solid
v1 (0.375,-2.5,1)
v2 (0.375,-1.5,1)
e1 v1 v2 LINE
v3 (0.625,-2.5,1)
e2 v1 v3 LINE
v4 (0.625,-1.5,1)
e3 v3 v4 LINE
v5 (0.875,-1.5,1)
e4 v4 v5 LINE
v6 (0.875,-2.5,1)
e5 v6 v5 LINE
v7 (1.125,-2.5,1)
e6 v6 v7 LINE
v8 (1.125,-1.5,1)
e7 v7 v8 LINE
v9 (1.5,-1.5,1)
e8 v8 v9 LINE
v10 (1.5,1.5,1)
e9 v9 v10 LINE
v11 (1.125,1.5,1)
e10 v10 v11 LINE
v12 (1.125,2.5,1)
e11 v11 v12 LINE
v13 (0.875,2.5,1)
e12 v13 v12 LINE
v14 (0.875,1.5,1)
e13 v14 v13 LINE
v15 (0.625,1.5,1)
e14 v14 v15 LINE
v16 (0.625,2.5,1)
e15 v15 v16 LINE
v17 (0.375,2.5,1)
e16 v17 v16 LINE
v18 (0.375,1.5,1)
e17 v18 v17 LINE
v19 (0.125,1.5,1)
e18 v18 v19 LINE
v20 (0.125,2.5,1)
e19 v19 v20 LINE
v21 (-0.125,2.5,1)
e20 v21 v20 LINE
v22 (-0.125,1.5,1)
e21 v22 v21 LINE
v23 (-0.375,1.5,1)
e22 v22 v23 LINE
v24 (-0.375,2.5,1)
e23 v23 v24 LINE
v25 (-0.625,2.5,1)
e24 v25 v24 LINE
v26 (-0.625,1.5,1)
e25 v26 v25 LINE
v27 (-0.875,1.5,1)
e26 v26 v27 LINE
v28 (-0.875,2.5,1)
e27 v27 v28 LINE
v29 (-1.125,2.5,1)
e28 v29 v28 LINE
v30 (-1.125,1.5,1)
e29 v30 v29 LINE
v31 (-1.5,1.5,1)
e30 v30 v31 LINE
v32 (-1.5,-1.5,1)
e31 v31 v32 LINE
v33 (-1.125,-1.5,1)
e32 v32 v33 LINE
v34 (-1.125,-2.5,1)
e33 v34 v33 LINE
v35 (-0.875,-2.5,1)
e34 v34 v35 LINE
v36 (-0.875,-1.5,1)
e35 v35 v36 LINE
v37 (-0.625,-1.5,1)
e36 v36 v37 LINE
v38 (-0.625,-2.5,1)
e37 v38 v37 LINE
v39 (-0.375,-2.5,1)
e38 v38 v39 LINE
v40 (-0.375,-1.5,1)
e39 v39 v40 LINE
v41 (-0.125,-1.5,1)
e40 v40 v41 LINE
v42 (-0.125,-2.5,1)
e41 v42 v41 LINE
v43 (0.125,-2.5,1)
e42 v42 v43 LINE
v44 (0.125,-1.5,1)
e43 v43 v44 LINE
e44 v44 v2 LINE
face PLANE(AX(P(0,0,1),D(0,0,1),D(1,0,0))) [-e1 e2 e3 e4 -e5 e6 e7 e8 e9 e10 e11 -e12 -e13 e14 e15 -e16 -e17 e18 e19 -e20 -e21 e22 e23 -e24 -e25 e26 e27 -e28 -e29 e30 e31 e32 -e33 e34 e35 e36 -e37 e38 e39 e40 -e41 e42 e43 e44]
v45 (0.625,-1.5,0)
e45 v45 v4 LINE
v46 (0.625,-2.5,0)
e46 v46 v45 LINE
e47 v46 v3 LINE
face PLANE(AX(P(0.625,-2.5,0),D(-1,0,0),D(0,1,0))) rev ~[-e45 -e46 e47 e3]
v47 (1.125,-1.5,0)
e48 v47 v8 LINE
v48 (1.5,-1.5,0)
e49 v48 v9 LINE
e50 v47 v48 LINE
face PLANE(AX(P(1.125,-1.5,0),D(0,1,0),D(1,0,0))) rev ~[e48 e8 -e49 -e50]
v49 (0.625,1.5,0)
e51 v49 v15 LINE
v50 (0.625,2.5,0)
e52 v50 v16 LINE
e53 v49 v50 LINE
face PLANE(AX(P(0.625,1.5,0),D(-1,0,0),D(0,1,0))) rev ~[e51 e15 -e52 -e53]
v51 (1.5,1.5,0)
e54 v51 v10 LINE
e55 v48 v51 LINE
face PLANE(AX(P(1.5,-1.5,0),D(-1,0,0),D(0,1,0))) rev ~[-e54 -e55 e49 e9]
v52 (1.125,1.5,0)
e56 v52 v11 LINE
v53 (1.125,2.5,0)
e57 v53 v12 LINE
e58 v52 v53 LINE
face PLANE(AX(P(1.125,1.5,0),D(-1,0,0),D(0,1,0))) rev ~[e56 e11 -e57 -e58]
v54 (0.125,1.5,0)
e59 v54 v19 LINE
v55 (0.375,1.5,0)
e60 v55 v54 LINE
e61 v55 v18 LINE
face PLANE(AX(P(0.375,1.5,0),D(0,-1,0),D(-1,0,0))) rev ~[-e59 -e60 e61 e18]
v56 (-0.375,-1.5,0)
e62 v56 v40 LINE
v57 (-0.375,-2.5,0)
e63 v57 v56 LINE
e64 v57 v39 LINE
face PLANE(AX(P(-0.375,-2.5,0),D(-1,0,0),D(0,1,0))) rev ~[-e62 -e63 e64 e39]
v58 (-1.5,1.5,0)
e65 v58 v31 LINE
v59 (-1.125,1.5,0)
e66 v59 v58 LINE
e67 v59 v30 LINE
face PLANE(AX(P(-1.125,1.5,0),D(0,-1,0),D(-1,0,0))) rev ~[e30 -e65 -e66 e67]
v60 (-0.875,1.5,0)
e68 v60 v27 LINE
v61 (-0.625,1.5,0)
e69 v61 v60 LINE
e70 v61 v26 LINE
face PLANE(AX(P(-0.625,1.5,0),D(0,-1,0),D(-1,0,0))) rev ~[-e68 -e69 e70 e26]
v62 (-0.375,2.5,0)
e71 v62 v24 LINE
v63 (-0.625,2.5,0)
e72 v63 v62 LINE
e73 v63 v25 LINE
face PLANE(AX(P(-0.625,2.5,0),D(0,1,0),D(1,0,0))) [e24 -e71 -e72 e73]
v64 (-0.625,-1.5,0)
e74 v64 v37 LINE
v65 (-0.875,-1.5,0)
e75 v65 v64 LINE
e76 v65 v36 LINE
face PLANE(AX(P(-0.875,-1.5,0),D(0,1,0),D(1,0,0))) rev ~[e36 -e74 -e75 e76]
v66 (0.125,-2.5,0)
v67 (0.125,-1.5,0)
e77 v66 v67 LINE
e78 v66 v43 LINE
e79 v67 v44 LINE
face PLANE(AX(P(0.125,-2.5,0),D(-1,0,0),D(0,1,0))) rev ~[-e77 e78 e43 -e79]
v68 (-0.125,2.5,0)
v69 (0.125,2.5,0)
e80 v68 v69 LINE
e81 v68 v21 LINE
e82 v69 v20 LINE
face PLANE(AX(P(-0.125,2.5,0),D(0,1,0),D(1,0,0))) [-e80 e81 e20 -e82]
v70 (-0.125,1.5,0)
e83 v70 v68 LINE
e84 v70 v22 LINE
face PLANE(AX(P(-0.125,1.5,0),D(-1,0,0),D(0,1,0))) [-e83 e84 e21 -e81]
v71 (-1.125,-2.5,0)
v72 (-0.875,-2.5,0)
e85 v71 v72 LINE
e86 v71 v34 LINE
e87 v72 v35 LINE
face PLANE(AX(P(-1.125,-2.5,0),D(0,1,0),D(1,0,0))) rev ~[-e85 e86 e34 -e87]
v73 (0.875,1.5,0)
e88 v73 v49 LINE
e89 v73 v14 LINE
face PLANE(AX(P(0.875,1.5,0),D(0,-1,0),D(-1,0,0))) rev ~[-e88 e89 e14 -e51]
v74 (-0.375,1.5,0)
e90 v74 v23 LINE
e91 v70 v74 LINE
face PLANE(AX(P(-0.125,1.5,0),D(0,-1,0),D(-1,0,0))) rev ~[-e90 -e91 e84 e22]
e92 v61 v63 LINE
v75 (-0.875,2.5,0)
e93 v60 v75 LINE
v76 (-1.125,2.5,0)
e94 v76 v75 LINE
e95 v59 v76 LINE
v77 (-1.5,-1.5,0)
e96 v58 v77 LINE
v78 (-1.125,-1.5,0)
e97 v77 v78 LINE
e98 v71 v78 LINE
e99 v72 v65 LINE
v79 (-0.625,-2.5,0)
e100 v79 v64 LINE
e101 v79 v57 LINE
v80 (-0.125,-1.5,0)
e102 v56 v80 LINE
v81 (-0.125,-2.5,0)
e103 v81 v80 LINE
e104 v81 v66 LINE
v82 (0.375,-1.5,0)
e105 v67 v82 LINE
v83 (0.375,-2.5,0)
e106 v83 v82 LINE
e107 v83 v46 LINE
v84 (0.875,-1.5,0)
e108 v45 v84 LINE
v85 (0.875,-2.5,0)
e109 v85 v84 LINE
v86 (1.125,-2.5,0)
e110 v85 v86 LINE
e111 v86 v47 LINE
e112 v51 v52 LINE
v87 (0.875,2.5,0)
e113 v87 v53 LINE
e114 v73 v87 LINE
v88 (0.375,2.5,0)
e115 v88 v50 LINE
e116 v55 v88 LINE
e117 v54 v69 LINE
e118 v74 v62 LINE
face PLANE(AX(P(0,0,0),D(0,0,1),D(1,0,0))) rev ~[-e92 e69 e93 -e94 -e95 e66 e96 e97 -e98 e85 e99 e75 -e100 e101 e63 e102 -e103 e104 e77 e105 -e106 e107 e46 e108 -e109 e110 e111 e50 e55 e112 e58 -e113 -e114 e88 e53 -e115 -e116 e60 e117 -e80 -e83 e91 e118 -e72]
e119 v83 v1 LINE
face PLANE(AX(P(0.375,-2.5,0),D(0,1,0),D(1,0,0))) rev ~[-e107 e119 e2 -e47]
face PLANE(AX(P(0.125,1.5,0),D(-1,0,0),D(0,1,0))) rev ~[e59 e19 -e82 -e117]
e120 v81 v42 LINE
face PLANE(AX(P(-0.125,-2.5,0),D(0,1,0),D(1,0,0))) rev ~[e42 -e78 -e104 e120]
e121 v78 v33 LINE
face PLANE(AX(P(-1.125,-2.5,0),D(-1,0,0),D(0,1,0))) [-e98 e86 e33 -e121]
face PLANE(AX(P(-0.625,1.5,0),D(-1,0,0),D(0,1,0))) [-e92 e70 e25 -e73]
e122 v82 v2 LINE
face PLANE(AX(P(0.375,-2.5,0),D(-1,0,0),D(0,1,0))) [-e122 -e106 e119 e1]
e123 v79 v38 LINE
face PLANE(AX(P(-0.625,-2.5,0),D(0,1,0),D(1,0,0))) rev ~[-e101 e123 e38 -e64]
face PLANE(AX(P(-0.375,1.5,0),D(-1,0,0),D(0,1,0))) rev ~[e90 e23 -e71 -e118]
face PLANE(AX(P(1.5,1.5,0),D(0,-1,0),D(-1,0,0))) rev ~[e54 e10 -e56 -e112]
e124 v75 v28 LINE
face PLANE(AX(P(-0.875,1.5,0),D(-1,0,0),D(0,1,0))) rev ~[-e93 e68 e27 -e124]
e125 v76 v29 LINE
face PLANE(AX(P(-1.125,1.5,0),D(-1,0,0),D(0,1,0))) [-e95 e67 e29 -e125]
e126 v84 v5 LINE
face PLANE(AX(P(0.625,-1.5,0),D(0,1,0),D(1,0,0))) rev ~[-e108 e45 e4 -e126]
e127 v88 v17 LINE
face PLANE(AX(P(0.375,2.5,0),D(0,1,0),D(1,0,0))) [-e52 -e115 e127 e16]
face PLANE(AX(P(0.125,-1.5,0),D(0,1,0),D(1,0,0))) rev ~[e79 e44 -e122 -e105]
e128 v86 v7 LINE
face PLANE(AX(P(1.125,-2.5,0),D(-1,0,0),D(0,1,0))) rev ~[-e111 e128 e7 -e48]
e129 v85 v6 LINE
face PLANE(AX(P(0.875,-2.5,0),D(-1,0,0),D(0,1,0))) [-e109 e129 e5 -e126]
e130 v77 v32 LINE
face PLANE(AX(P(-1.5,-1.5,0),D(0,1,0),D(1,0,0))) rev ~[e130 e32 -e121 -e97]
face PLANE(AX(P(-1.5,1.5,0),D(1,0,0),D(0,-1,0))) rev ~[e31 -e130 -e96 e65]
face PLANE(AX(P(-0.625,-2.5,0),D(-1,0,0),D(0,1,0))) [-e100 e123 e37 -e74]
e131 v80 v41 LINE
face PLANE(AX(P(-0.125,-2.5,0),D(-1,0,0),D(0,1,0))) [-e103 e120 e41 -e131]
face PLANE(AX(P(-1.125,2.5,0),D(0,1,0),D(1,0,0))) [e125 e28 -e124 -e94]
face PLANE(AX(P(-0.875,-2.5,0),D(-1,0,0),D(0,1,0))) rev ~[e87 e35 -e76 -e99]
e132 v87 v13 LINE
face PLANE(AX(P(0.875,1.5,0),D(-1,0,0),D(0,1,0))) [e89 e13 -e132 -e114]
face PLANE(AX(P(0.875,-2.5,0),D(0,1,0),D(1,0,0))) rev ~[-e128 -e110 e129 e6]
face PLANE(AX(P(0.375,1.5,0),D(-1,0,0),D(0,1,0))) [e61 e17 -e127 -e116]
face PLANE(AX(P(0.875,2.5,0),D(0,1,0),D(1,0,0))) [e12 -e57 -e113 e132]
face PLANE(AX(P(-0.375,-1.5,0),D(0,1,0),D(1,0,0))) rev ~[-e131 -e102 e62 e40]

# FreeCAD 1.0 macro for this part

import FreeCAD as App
import Part
import Sketcher
from FreeCAD import Vector


def add_polygon(sketch, points):
    """Adds a closed chain of lines whose ends are joined by coincident constraints."""
    first, n = sketch.GeometryCount, len(points)
    for a, b in zip(points, points[1:] + points[:1]):
        sketch.addGeometry(Part.LineSegment(App.Vector(*a, 0), App.Vector(*b, 0)), False)
    for i in range(n):
        sketch.addConstraint(Sketcher.Constraint("Coincident", first + i, 2, first + (i + 1) % n, 1))

doc = App.newDocument("Part")
body = doc.addObject("PartDesign::Body", "Body")

# Sketch on XY plane
sketch1 = body.newObject("Sketcher::SketchObject", "Sketch")
sketch1.AttachmentSupport = (doc.getObject("XY_Plane"), [""])
sketch1.MapMode = "FlatFace"
add_polygon(sketch1, [(1.5, -1.5), (1.5, 1.5), (1.12, 1.5), (1.12, 2.5), (0.88, 2.5), (0.88, 1.5), (0.62, 1.5), (0.62, 2.5), (0.38, 2.5), (0.38, 1.5), (0.12, 1.5), (0.12, 2.5), (-0.12, 2.5), (-0.12, 1.5), (-0.38, 1.5), (-0.38, 2.5), (-0.62, 2.5), (-0.62, 1.5), (-0.88, 1.5), (-0.88, 2.5), (-1.12, 2.5), (-1.12, 1.5), (-1.5, 1.5), (-1.5, -1.5), (-1.12, -1.5), (-1.12, -2.5), (-0.88, -2.5), (-0.88, -1.5), (-0.62, -1.5), (-0.62, -2.5), (-0.38, -2.5), (-0.38, -1.5), (-0.12, -1.5), (-0.12, -2.5), (0.12, -2.5), (0.12, -1.5), (0.38, -1.5), (0.38, -2.5), (0.62, -2.5), (0.62, -1.5), (0.88, -1.5), (0.88, -2.5), (1.12, -2.5), (1.12, -1.5)])  # lines 0-43
sketch1.addConstraint(Sketcher.Constraint("Vertical", 0))
sketch1.addConstraint(Sketcher.Constraint("Horizontal", 1))
sketch1.addConstraint(Sketcher.Constraint("Vertical", 2))
sketch1.addConstraint(Sketcher.Constraint("Horizontal", 3))
sketch1.addConstraint(Sketcher.Constraint("Vertical", 4))
sketch1.addConstraint(Sketcher.Constraint("Horizontal", 5))
sketch1.addConstraint(Sketcher.Constraint("Vertical", 6))
sketch1.addConstraint(Sketcher.Constraint("Horizontal", 7))
sketch1.addConstraint(Sketcher.Constraint("Vertical", 8))
sketch1.addConstraint(Sketcher.Constraint("Horizontal", 9))
sketch1.addConstraint(Sketcher.Constraint("Vertical", 10))
sketch1.addConstraint(Sketcher.Constraint("Horizontal", 11))
sketch1.addConstraint(Sketcher.Constraint("Vertical", 12))
sketch1.addConstraint(Sketcher.Constraint("Horizontal", 13))
sketch1.addConstraint(Sketcher.Constraint("Vertical", 14))
sketch1.addConstraint(Sketcher.Constraint("Horizontal", 15))
sketch1.addConstraint(Sketcher.Constraint("Vertical", 16))
sketch1.addConstraint(Sketcher.Constraint("Horizontal", 17))
sketch1.addConstraint(Sketcher.Constraint("Vertical", 18))
sketch1.addConstraint(Sketcher.Constraint("Horizontal", 19))
sketch1.addConstraint(Sketcher.Constraint("Vertical", 20))
sketch1.addConstraint(Sketcher.Constraint("Horizontal", 21))
sketch1.addConstraint(Sketcher.Constraint("Vertical", 22))
sketch1.addConstraint(Sketcher.Constraint("Horizontal", 23))
sketch1.addConstraint(Sketcher.Constraint("Vertical", 24))
sketch1.addConstraint(Sketcher.Constraint("Horizontal", 25))
sketch1.addConstraint(Sketcher.Constraint("Vertical", 26))
sketch1.addConstraint(Sketcher.Constraint("Horizontal", 27))
sketch1.addConstraint(Sketcher.Constraint("Vertical", 28))
sketch1.addConstraint(Sketcher.Constraint("Horizontal", 29))
sketch1.addConstraint(Sketcher.Constraint("Vertical", 30))
sketch1.addConstraint(Sketcher.Constraint("Horizontal", 31))
sketch1.addConstraint(Sketcher.Constraint("Vertical", 32))
sketch1.addConstraint(Sketcher.Constraint("Horizontal", 33))
sketch1.addConstraint(Sketcher.Constraint("Vertical", 34))
sketch1.addConstraint(Sketcher.Constraint("Horizontal", 35))
sketch1.addConstraint(Sketcher.Constraint("Vertical", 36))
sketch1.addConstraint(Sketcher.Constraint("Horizontal", 37))
sketch1.addConstraint(Sketcher.Constraint("Vertical", 38))
sketch1.addConstraint(Sketcher.Constraint("Horizontal", 39))
sketch1.addConstraint(Sketcher.Constraint("Vertical", 40))
sketch1.addConstraint(Sketcher.Constraint("Horizontal", 41))
sketch1.addConstraint(Sketcher.Constraint("Vertical", 42))
sketch1.addConstraint(Sketcher.Constraint("Horizontal", 43))
sketch1.addConstraint(Sketcher.Constraint("Symmetric", 0, 2, 22, 2, -1, 1))
sketch1.addConstraint(Sketcher.Constraint("Symmetric", 2, 2, 24, 2, -1, 1))
sketch1.addConstraint(Sketcher.Constraint("Symmetric", 4, 2, 26, 2, -1, 1))
sketch1.addConstraint(Sketcher.Constraint("Symmetric", 6, 2, 28, 2, -1, 1))
sketch1.addConstraint(Sketcher.Constraint("Symmetric", 8, 2, 30, 2, -1, 1))
sketch1.addConstraint(Sketcher.Constraint("Symmetric", 10, 2, 32, 2, -1, 1))
sketch1.addConstraint(Sketcher.Constraint("Symmetric", 12, 2, 34, 2, -1, 1))
sketch1.addConstraint(Sketcher.Constraint("Symmetric", 14, 2, 36, 2, -1, 1))
sketch1.addConstraint(Sketcher.Constraint("Symmetric", 16, 2, 38, 2, -1, 1))
sketch1.addConstraint(Sketcher.Constraint("Symmetric", 18, 2, 40, 2, -1, 1))
sketch1.addConstraint(Sketcher.Constraint("Symmetric", 20, 2, 42, 2, -1, 1))
sketch1.addConstraint(Sketcher.Constraint("Symmetric", 9, 2, 12, 2, -2))
sketch1.addConstraint(Sketcher.Constraint("Symmetric", 7, 2, 14, 2, -2))
sketch1.addConstraint(Sketcher.Constraint("Symmetric", 5, 2, 16, 2, -2))
sketch1.addConstraint(Sketcher.Constraint("Symmetric", 3, 2, 18, 2, -2))
sketch1.addConstraint(Sketcher.Constraint("Symmetric", 1, 2, 20, 2, -2))
sketch1.addConstraint(Sketcher.Constraint("Horizontal", 1, 2, 4, 2))
sketch1.addConstraint(Sketcher.Constraint("Horizontal", 3, 2, 6, 2))
sketch1.addConstraint(Sketcher.Constraint("Horizontal", 5, 2, 8, 2))
sketch1.addConstraint(Sketcher.Constraint("Horizontal", 7, 2, 10, 2))
sketch1.addConstraint(Sketcher.Constraint("Equal", 3, 5))
sketch1.addConstraint(Sketcher.Constraint("Equal", 5, 7))
sketch1.addConstraint(Sketcher.Constraint("Equal", 7, 9))
sketch1.addConstraint(Sketcher.Constraint("Equal", 9, 11))
sketch1.addConstraint(Sketcher.Constraint("DistanceY", 0, 1, 0, 2, 3.0))
sketch1.addConstraint(Sketcher.Constraint("DistanceY", 2, 1, 2, 2, 1.0))
sketch1.addConstraint(Sketcher.Constraint("DistanceX", 9, 2, 1, 2, 1.0))
sketch1.addConstraint(Sketcher.Constraint("DistanceX", -1, 1, 0, 2, 1.5))
pad1 = body.newObject("PartDesign::Pad", "Pad")
pad1.Profile = sketch1
pad1.Length = 1

doc.recompute()
